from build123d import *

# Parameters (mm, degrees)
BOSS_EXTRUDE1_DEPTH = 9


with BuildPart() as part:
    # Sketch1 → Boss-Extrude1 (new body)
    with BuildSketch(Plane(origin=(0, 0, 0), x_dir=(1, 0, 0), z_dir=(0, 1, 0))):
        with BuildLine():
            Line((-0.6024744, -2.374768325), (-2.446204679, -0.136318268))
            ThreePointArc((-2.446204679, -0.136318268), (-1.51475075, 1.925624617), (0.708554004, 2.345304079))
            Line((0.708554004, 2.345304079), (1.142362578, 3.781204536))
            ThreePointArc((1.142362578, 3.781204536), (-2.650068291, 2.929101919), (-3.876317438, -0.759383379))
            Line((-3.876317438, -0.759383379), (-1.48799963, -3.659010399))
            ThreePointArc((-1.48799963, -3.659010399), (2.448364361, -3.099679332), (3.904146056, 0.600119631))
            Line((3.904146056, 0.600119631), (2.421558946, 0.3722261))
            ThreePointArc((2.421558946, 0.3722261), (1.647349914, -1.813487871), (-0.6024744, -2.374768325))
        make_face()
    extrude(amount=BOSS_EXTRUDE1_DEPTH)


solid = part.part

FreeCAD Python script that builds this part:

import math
import FreeCAD as App
import Part
import Sketcher

doc = App.newDocument("Part")
body = doc.addObject("PartDesign::Body", "Body")

sketch1 = doc.addObject("Sketcher::SketchObject", "Sketch")
body.addObject(sketch1)
sketch1.AttachmentSupport = (doc.XZ_Plane, [""])
sketch1.MapMode = "FlatFace"
sketch1.addGeometry([
    Part.LineSegment(App.Vector(-0.6, 2.4, 0), App.Vector(-2.4, 0.1, 0)),
    Part.ArcOfCircle(Part.Circle(App.Vector(0, 0, 0), App.Vector(0, 0, 1), 2.5), math.radians(177), math.radians(287)),
    Part.LineSegment(App.Vector(0.7, -2.3, 0), App.Vector(1.1, -3.8, 0)),
    Part.ArcOfCircle(Part.Circle(App.Vector(0, 0, 0), App.Vector(0, 0, 1), 4), math.radians(169), math.radians(287)),
    Part.LineSegment(App.Vector(-3.9, 0.8, 0), App.Vector(-1.5, 3.7, 0)),
    Part.ArcOfCircle(Part.Circle(App.Vector(0, 0, 0), App.Vector(0, 0, 1), 3.9), math.radians(-9), math.radians(112)),
    Part.LineSegment(App.Vector(3.9, -0.6, 0), App.Vector(2.4, -0.4, 0)),
    Part.ArcOfCircle(Part.Circle(App.Vector(0, 0, 0), App.Vector(0, 0, 1), 2.5), math.radians(-9), math.radians(104)),
], False)
sketch1.addConstraint([
    Sketcher.Constraint("Coincident", 0, 2, 1, 1),
    Sketcher.Constraint("Coincident", 1, 2, 2, 1),
    Sketcher.Constraint("Coincident", 2, 2, 3, 2),
    Sketcher.Constraint("Coincident", 3, 1, 4, 1),
    Sketcher.Constraint("Coincident", 4, 2, 5, 2),
    Sketcher.Constraint("Coincident", 5, 1, 6, 1),
    Sketcher.Constraint("Coincident", 6, 2, 7, 1),
    Sketcher.Constraint("Coincident", 7, 2, 0, 1),
    Sketcher.Constraint("Coincident", 1, 3, -1, 1),
    Sketcher.Constraint("Coincident", 3, 3, -1, 1),
    Sketcher.Constraint("Coincident", 5, 3, -1, 1),
    Sketcher.Constraint("Coincident", 7, 3, -1, 1),
    Sketcher.Constraint("Equal", 3, 5),
    Sketcher.Constraint("Equal", 1, 7),
    Sketcher.Constraint("Parallel", 0, 4),
    Sketcher.Constraint("Radius", 1, 2.45),
    Sketcher.Constraint("Radius", 3, 3.95),
    Sketcher.Constraint("Distance", 0, 2.9),
    Sketcher.Constraint("DistanceX", 4, 2, -1, 1, 1.488),
    Sketcher.Constraint("DistanceY", 2, 2, 1, 2, 1.4359),
    Sketcher.Constraint("Distance", 4, 3.756581),
    Sketcher.Constraint("DistanceY", 5, 1, -1, 1, 0.60012),
    Sketcher.Constraint("DistanceX", -1, 1, 6, 2, 2.421559),
    Sketcher.Constraint("DistanceX", 0, 2, 1, 2, 3.154759),
])
pad1 = doc.addObject("PartDesign::Pad", "Pad")
body.addObject(pad1)
pad1.Profile = sketch1
pad1.Length = 9
pad1.Reversed = True

doc.recompute()
